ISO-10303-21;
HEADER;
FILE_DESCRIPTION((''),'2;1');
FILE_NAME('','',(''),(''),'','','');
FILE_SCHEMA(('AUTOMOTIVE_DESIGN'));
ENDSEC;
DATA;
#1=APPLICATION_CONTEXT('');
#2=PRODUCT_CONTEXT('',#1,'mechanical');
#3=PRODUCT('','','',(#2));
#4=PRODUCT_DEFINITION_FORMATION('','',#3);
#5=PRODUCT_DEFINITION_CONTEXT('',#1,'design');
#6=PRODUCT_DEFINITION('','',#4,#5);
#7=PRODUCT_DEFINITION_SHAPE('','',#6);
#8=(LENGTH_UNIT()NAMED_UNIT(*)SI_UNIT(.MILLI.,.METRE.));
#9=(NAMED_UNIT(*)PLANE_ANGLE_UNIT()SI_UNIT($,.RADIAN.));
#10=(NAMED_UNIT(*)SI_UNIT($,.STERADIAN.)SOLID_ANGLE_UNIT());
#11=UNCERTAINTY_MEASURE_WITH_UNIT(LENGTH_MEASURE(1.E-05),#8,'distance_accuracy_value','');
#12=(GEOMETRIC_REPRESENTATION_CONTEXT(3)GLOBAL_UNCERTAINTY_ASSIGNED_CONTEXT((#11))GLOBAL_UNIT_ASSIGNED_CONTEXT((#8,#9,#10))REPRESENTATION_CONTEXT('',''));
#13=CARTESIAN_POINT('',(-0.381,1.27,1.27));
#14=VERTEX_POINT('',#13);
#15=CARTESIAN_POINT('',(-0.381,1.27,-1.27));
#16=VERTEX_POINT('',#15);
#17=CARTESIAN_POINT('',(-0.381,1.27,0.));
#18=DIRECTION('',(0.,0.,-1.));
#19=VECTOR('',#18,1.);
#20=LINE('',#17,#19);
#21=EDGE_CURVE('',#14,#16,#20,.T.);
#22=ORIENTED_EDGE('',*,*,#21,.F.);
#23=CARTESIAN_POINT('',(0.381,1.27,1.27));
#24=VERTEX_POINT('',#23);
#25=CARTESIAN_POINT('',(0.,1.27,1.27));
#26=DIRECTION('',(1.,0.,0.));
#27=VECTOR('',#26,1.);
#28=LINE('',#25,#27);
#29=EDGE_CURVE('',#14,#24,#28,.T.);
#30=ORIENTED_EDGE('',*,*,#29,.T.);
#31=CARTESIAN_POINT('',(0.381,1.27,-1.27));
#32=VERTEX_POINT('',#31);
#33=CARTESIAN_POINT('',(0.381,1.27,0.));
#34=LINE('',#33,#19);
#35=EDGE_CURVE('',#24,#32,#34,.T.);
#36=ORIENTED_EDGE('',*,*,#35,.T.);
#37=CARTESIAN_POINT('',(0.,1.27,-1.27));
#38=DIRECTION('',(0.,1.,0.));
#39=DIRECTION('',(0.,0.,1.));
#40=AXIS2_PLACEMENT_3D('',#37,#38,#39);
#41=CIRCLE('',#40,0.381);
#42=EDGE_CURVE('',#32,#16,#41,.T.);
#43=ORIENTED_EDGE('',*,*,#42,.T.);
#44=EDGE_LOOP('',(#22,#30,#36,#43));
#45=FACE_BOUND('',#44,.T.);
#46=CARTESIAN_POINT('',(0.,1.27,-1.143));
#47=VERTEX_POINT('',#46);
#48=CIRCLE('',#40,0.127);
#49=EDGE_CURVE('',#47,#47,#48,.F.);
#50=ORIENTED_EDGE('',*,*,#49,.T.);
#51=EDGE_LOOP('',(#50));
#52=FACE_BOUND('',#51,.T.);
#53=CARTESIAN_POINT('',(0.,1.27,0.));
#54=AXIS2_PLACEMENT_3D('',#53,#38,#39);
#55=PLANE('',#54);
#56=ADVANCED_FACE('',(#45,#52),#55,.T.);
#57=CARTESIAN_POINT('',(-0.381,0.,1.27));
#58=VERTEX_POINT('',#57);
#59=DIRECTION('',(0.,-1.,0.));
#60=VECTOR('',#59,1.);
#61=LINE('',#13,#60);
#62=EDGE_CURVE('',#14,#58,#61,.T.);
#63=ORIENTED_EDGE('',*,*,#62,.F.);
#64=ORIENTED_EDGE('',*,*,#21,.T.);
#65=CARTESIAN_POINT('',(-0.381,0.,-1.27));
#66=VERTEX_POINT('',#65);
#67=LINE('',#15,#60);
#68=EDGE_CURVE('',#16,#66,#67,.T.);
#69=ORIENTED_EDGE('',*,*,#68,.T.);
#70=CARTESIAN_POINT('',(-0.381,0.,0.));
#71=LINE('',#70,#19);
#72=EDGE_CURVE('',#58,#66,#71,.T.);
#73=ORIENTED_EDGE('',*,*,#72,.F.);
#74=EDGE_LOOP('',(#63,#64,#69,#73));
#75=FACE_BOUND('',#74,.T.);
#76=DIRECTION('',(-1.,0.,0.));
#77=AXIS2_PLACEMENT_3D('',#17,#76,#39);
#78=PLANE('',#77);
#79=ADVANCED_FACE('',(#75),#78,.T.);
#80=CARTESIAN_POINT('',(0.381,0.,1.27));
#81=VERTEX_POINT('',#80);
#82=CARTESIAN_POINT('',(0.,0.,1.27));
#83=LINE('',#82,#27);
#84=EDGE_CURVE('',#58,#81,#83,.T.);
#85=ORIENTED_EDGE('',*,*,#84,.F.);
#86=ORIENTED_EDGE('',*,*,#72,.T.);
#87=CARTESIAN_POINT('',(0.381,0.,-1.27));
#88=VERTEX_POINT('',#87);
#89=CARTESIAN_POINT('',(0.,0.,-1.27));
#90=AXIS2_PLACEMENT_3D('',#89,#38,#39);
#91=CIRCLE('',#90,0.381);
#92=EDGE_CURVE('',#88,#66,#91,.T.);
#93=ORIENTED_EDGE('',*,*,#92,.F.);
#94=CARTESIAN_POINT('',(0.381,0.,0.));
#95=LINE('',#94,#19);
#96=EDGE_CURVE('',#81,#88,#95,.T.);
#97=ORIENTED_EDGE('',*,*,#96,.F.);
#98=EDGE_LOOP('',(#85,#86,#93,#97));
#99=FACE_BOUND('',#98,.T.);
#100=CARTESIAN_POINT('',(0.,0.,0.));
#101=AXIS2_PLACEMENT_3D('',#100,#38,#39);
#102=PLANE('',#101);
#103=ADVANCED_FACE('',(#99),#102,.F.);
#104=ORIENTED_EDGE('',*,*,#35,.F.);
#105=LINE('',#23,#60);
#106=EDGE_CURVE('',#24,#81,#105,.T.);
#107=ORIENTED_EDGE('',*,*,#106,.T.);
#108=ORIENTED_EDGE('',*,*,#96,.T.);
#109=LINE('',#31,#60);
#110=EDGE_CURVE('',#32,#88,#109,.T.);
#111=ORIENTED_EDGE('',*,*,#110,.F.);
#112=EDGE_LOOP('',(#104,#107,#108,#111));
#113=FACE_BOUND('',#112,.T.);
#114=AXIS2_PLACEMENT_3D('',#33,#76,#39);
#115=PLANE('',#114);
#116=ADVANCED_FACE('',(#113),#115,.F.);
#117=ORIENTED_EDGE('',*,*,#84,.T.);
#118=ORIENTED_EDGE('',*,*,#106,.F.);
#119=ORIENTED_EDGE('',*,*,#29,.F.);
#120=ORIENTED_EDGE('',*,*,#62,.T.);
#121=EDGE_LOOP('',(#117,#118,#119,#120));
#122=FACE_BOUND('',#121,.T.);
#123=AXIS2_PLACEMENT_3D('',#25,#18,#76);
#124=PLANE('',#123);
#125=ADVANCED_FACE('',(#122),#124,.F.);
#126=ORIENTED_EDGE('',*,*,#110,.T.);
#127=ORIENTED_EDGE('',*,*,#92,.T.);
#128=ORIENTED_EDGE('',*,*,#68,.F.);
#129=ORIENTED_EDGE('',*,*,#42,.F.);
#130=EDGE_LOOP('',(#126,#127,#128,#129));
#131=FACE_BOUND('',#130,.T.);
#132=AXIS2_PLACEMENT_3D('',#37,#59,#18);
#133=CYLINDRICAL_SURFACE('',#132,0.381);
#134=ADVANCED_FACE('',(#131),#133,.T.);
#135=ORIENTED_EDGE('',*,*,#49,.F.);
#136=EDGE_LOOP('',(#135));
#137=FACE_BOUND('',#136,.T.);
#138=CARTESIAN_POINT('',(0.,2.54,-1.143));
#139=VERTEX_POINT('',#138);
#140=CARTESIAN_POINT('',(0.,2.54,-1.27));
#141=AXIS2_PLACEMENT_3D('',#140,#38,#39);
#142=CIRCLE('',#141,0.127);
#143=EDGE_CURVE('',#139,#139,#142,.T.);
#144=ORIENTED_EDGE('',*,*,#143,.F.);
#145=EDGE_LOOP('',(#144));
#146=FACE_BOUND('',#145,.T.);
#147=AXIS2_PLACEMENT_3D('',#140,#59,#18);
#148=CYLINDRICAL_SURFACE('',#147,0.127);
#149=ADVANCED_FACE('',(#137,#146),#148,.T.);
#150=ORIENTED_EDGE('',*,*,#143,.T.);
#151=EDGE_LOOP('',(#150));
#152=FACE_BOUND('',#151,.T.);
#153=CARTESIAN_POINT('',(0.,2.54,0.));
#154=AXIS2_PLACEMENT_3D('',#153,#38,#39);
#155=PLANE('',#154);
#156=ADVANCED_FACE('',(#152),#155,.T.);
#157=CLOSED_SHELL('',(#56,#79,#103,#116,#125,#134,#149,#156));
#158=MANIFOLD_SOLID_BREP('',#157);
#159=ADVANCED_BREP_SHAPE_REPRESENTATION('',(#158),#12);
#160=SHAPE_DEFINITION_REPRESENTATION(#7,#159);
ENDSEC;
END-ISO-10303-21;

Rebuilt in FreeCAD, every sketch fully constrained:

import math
import FreeCAD as App
import Part
import Sketcher
from FreeCAD import Vector
Q = App.Units.Quantity

doc = App.newDocument("Part")
body = doc.addObject("PartDesign::Body", "Body")

# Sketch on XZ plane
sketch1 = body.newObject("Sketcher::SketchObject", "Sketch")
sketch1.AttachmentSupport = (doc.getObject("XZ_Plane"), [""])
sketch1.MapMode = "FlatFace"
sketch1.addGeometry([
    Part.ArcOfCircle(Part.Circle(Vector(0, -1.27, 0), Vector(0, 0, 1), 0.381), math.radians(180), math.radians(360)),
    Part.LineSegment(Vector(-0.381, -1.27, 0), Vector(-0.381, 1.27, 0)),
    Part.LineSegment(Vector(-0.381, 1.27, 0), Vector(0.381, 1.27, 0)),
    Part.LineSegment(Vector(0.381, 1.27, 0), Vector(0.381, -1.27, 0)),
], False)
sketch1.addConstraint([
    Sketcher.Constraint("Tangent", 0, 1, 1, 1),
    Sketcher.Constraint("Coincident", 1, 2, 2, 1),
    Sketcher.Constraint("Coincident", 2, 2, 3, 1),
    Sketcher.Constraint("Tangent", 3, 2, 0, 2),
    Sketcher.Constraint("Vertical", 1),
    Sketcher.Constraint("Horizontal", 2),
    Sketcher.Constraint("Vertical", 3),
    Sketcher.Constraint("Symmetric", 0, 1, 2, 2, -1, 1),
    Sketcher.Constraint("DistanceY", 1, 1, 1, 2, Q("0.1 in")),
    Sketcher.Constraint("Radius", 0, Q("0.015 in")),
])
pad1 = body.newObject("PartDesign::Pad", "Pad")
pad1.Profile = sketch1
pad1.Length = Q("0.05 in")
pad1.Reversed = True

# Sketch on XZ plane
sketch2 = body.newObject("Sketcher::SketchObject", "Sketch001")
sketch2.AttachmentSupport = (doc.getObject("XZ_Plane"), [""])
sketch2.MapMode = "FlatFace"
sketch2.addGeometry(Part.Circle(Vector(0, -1.27, 0), Vector(0, 0, 1), 0.127), False)
sketch2.addConstraint([
    Sketcher.Constraint("PointOnObject", 0, 3, -2),
    Sketcher.Constraint("Diameter", 0, Q("0.01 in")),
    Sketcher.Constraint("DistanceY", 0, 3, -1, 1, Q("0.05 in")),
])
pad2 = body.newObject("PartDesign::Pad", "Pad001")
pad2.Profile = sketch2
pad2.Length = Q("0.1 in")
pad2.Reversed = True

doc.recompute()
